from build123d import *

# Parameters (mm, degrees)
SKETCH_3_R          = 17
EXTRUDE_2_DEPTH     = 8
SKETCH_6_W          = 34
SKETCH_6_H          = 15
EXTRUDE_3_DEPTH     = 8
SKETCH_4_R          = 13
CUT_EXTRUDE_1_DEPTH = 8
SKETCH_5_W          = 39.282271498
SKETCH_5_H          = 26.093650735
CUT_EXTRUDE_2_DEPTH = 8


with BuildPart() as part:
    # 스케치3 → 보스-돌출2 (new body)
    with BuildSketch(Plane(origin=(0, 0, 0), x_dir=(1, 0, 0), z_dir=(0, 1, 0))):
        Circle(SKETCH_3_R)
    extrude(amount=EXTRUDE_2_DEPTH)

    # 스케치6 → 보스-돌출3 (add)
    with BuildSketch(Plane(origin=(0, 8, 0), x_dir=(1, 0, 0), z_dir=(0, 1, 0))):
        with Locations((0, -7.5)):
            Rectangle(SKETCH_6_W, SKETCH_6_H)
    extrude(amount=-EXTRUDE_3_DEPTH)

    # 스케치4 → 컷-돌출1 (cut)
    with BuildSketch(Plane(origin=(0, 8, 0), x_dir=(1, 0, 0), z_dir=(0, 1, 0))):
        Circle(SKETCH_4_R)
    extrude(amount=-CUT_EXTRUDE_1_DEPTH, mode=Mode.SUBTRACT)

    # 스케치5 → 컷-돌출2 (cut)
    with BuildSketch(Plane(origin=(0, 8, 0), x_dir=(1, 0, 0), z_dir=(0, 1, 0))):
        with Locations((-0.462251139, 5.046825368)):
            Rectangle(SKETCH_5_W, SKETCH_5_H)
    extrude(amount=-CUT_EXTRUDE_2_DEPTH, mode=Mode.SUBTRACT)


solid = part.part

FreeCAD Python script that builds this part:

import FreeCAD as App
import Part
import Sketcher
Q = App.Units.Quantity


def add_polygon(sketch, points):
    """Adds a closed chain of lines whose ends are joined by coincident constraints."""
    first, n = sketch.GeometryCount, len(points)
    for a, b in zip(points, points[1:] + points[:1]):
        sketch.addGeometry(Part.LineSegment(App.Vector(*a, 0), App.Vector(*b, 0)), False)
    for i in range(n):
        sketch.addConstraint(Sketcher.Constraint("Coincident", first + i, 2, first + (i + 1) % n, 1))

doc = App.newDocument("Part")
body = doc.addObject("PartDesign::Body", "Body")

# Sketch on XZ plane
sketch1 = doc.addObject("Sketcher::SketchObject", "Sketch")
body.addObject(sketch1)
sketch1.AttachmentSupport = (doc.XZ_Plane, [""])
sketch1.MapMode = "FlatFace"
sketch1.addGeometry(Part.Circle(App.Vector(0, 0, 0), App.Vector(0, 0, 1), 17), False)
sketch1.addConstraint([
    Sketcher.Constraint("Coincident", 0, 3, -1, 1),
    Sketcher.Constraint("Diameter", 0, Q("34 mm")),
])
pad1 = doc.addObject("PartDesign::Pad", "Pad")
body.addObject(pad1)
pad1.Profile = sketch1
pad1.Length = 8
pad1.Reversed = True

# Sketch on XZ plane
sketch2 = doc.addObject("Sketcher::SketchObject", "Sketch001")
body.addObject(sketch2)
sketch2.AttachmentSupport = (doc.XZ_Plane, [""])
sketch2.MapMode = "FlatFace"
sketch2.AttachmentOffset = App.Placement(App.Vector(0, 0, -8), App.Rotation())
add_polygon(sketch2, [(-17, 0), (-17, 15), (17, 15), (17, 0)])  # lines 0-3
sketch2.addConstraint([
    Sketcher.Constraint("Vertical", 0),
    Sketcher.Constraint("Horizontal", 1),
    Sketcher.Constraint("Vertical", 2),
    Sketcher.Constraint("Horizontal", 3),
    Sketcher.Constraint("Symmetric", 2, 2, 3, 2, -1, 1),
    Sketcher.Constraint("DistanceX", 1, 1, 1, 2, Q("34 mm")),
    Sketcher.Constraint("DistanceY", 0, 1, 0, 2, Q("15 mm")),
])
pad2 = doc.addObject("PartDesign::Pad", "Pad001")
body.addObject(pad2)
pad2.Profile = sketch2
pad2.Length = 8

# Sketch on XZ plane
sketch3 = doc.addObject("Sketcher::SketchObject", "Sketch002")
body.addObject(sketch3)
sketch3.AttachmentSupport = (doc.XZ_Plane, [""])
sketch3.MapMode = "FlatFace"
sketch3.AttachmentOffset = App.Placement(App.Vector(0, 0, -8), App.Rotation())
sketch3.addGeometry(Part.Circle(App.Vector(0, 0, 0), App.Vector(0, 0, 1), 13), False)
sketch3.addConstraint([
    Sketcher.Constraint("Coincident", 0, 3, -1, 1),
    Sketcher.Constraint("Diameter", 0, Q("26 mm")),
])
pocket1 = doc.addObject("PartDesign::Pocket", "Pocket")
body.addObject(pocket1)
pocket1.Profile = sketch3
pocket1.Length = 8
pocket1.Reversed = True

# Sketch on XZ plane
sketch4 = doc.addObject("Sketcher::SketchObject", "Sketch003")
body.addObject(sketch4)
sketch4.AttachmentSupport = (doc.XZ_Plane, [""])
sketch4.MapMode = "FlatFace"
sketch4.AttachmentOffset = App.Placement(App.Vector(0, 0, -8), App.Rotation())
add_polygon(sketch4, [(-20.103387, -18.093651), (-20.103387, 8), (19.178885, 8), (19.178885, -18.093651)])  # lines 0-3
sketch4.addConstraint([
    Sketcher.Constraint("Vertical", 0),
    Sketcher.Constraint("Horizontal", 1),
    Sketcher.Constraint("Vertical", 2),
    Sketcher.Constraint("Horizontal", 3),
    Sketcher.Constraint("DistanceY", -1, 1, 0, 2, Q("8 mm")),
    Sketcher.Constraint("DistanceX", 1, 1, 1, 2, Q("39.282271 mm")),
    Sketcher.Constraint("DistanceY", 0, 1, 0, 2, Q("26.093651 mm")),
    Sketcher.Constraint("DistanceX", 0, 2, -1, 1, Q("20.103387 mm")),
])
pocket2 = doc.addObject("PartDesign::Pocket", "Pocket001")
body.addObject(pocket2)
pocket2.Profile = sketch4
pocket2.Length = 8
pocket2.Reversed = True

doc.recompute()
